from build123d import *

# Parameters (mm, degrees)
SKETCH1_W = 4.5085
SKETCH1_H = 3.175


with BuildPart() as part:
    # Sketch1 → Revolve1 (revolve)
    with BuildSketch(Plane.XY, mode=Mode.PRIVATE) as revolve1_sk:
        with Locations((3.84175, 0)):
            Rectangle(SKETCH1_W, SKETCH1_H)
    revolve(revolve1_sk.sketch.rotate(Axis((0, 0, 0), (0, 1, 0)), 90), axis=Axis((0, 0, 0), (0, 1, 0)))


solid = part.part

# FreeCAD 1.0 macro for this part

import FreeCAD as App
import Part
import Sketcher
from FreeCAD import Vector
Q = App.Units.Quantity

doc = App.newDocument("Part")
body = doc.addObject("PartDesign::Body", "Body")

# Sketch on XY plane
sketch1 = body.newObject("Sketcher::SketchObject", "Sketch")
sketch1.AttachmentSupport = (doc.getObject("XY_Plane"), [""])
sketch1.MapMode = "FlatFace"
sketch1.addGeometry([
    Part.LineSegment(Vector(1.5875, 1.5875, 0), Vector(1.5875, -1.5875, 0)),
    Part.LineSegment(Vector(1.5875, -1.5875, 0), Vector(6.096, -1.5875, 0)),
    Part.LineSegment(Vector(6.096, -1.5875, 0), Vector(6.096, 1.5875, 0)),
    Part.LineSegment(Vector(6.096, 1.5875, 0), Vector(1.5875, 1.5875, 0)),
], False)
sketch1.addConstraint([
    Sketcher.Constraint("Coincident", 0, 2, 1, 1),
    Sketcher.Constraint("Coincident", 1, 2, 2, 1),
    Sketcher.Constraint("Coincident", 2, 2, 3, 1),
    Sketcher.Constraint("Coincident", 3, 2, 0, 1),
    Sketcher.Constraint("Vertical", 0),
    Sketcher.Constraint("Horizontal", 1),
    Sketcher.Constraint("Vertical", 2),
    Sketcher.Constraint("Horizontal", 3),
    Sketcher.Constraint("DistanceY", 0, 2, 0, 1, Q("0.125 in")),
    Sketcher.Constraint("DistanceX", -1, 1, 1, 2, Q("0.24 in")),
    Sketcher.Constraint("DistanceX", 1, 1, 1, 2, Q("0.1775 in")),
    Sketcher.Constraint("DistanceY", 0, 2, -1, 1, Q("0.0625 in")),
])
revolution = body.newObject("PartDesign::Revolution", "Revolution")
revolution.Profile = sketch1
revolution.ReferenceAxis = (sketch1, ["V_Axis"])
revolution.Angle = 360

doc.recompute()
